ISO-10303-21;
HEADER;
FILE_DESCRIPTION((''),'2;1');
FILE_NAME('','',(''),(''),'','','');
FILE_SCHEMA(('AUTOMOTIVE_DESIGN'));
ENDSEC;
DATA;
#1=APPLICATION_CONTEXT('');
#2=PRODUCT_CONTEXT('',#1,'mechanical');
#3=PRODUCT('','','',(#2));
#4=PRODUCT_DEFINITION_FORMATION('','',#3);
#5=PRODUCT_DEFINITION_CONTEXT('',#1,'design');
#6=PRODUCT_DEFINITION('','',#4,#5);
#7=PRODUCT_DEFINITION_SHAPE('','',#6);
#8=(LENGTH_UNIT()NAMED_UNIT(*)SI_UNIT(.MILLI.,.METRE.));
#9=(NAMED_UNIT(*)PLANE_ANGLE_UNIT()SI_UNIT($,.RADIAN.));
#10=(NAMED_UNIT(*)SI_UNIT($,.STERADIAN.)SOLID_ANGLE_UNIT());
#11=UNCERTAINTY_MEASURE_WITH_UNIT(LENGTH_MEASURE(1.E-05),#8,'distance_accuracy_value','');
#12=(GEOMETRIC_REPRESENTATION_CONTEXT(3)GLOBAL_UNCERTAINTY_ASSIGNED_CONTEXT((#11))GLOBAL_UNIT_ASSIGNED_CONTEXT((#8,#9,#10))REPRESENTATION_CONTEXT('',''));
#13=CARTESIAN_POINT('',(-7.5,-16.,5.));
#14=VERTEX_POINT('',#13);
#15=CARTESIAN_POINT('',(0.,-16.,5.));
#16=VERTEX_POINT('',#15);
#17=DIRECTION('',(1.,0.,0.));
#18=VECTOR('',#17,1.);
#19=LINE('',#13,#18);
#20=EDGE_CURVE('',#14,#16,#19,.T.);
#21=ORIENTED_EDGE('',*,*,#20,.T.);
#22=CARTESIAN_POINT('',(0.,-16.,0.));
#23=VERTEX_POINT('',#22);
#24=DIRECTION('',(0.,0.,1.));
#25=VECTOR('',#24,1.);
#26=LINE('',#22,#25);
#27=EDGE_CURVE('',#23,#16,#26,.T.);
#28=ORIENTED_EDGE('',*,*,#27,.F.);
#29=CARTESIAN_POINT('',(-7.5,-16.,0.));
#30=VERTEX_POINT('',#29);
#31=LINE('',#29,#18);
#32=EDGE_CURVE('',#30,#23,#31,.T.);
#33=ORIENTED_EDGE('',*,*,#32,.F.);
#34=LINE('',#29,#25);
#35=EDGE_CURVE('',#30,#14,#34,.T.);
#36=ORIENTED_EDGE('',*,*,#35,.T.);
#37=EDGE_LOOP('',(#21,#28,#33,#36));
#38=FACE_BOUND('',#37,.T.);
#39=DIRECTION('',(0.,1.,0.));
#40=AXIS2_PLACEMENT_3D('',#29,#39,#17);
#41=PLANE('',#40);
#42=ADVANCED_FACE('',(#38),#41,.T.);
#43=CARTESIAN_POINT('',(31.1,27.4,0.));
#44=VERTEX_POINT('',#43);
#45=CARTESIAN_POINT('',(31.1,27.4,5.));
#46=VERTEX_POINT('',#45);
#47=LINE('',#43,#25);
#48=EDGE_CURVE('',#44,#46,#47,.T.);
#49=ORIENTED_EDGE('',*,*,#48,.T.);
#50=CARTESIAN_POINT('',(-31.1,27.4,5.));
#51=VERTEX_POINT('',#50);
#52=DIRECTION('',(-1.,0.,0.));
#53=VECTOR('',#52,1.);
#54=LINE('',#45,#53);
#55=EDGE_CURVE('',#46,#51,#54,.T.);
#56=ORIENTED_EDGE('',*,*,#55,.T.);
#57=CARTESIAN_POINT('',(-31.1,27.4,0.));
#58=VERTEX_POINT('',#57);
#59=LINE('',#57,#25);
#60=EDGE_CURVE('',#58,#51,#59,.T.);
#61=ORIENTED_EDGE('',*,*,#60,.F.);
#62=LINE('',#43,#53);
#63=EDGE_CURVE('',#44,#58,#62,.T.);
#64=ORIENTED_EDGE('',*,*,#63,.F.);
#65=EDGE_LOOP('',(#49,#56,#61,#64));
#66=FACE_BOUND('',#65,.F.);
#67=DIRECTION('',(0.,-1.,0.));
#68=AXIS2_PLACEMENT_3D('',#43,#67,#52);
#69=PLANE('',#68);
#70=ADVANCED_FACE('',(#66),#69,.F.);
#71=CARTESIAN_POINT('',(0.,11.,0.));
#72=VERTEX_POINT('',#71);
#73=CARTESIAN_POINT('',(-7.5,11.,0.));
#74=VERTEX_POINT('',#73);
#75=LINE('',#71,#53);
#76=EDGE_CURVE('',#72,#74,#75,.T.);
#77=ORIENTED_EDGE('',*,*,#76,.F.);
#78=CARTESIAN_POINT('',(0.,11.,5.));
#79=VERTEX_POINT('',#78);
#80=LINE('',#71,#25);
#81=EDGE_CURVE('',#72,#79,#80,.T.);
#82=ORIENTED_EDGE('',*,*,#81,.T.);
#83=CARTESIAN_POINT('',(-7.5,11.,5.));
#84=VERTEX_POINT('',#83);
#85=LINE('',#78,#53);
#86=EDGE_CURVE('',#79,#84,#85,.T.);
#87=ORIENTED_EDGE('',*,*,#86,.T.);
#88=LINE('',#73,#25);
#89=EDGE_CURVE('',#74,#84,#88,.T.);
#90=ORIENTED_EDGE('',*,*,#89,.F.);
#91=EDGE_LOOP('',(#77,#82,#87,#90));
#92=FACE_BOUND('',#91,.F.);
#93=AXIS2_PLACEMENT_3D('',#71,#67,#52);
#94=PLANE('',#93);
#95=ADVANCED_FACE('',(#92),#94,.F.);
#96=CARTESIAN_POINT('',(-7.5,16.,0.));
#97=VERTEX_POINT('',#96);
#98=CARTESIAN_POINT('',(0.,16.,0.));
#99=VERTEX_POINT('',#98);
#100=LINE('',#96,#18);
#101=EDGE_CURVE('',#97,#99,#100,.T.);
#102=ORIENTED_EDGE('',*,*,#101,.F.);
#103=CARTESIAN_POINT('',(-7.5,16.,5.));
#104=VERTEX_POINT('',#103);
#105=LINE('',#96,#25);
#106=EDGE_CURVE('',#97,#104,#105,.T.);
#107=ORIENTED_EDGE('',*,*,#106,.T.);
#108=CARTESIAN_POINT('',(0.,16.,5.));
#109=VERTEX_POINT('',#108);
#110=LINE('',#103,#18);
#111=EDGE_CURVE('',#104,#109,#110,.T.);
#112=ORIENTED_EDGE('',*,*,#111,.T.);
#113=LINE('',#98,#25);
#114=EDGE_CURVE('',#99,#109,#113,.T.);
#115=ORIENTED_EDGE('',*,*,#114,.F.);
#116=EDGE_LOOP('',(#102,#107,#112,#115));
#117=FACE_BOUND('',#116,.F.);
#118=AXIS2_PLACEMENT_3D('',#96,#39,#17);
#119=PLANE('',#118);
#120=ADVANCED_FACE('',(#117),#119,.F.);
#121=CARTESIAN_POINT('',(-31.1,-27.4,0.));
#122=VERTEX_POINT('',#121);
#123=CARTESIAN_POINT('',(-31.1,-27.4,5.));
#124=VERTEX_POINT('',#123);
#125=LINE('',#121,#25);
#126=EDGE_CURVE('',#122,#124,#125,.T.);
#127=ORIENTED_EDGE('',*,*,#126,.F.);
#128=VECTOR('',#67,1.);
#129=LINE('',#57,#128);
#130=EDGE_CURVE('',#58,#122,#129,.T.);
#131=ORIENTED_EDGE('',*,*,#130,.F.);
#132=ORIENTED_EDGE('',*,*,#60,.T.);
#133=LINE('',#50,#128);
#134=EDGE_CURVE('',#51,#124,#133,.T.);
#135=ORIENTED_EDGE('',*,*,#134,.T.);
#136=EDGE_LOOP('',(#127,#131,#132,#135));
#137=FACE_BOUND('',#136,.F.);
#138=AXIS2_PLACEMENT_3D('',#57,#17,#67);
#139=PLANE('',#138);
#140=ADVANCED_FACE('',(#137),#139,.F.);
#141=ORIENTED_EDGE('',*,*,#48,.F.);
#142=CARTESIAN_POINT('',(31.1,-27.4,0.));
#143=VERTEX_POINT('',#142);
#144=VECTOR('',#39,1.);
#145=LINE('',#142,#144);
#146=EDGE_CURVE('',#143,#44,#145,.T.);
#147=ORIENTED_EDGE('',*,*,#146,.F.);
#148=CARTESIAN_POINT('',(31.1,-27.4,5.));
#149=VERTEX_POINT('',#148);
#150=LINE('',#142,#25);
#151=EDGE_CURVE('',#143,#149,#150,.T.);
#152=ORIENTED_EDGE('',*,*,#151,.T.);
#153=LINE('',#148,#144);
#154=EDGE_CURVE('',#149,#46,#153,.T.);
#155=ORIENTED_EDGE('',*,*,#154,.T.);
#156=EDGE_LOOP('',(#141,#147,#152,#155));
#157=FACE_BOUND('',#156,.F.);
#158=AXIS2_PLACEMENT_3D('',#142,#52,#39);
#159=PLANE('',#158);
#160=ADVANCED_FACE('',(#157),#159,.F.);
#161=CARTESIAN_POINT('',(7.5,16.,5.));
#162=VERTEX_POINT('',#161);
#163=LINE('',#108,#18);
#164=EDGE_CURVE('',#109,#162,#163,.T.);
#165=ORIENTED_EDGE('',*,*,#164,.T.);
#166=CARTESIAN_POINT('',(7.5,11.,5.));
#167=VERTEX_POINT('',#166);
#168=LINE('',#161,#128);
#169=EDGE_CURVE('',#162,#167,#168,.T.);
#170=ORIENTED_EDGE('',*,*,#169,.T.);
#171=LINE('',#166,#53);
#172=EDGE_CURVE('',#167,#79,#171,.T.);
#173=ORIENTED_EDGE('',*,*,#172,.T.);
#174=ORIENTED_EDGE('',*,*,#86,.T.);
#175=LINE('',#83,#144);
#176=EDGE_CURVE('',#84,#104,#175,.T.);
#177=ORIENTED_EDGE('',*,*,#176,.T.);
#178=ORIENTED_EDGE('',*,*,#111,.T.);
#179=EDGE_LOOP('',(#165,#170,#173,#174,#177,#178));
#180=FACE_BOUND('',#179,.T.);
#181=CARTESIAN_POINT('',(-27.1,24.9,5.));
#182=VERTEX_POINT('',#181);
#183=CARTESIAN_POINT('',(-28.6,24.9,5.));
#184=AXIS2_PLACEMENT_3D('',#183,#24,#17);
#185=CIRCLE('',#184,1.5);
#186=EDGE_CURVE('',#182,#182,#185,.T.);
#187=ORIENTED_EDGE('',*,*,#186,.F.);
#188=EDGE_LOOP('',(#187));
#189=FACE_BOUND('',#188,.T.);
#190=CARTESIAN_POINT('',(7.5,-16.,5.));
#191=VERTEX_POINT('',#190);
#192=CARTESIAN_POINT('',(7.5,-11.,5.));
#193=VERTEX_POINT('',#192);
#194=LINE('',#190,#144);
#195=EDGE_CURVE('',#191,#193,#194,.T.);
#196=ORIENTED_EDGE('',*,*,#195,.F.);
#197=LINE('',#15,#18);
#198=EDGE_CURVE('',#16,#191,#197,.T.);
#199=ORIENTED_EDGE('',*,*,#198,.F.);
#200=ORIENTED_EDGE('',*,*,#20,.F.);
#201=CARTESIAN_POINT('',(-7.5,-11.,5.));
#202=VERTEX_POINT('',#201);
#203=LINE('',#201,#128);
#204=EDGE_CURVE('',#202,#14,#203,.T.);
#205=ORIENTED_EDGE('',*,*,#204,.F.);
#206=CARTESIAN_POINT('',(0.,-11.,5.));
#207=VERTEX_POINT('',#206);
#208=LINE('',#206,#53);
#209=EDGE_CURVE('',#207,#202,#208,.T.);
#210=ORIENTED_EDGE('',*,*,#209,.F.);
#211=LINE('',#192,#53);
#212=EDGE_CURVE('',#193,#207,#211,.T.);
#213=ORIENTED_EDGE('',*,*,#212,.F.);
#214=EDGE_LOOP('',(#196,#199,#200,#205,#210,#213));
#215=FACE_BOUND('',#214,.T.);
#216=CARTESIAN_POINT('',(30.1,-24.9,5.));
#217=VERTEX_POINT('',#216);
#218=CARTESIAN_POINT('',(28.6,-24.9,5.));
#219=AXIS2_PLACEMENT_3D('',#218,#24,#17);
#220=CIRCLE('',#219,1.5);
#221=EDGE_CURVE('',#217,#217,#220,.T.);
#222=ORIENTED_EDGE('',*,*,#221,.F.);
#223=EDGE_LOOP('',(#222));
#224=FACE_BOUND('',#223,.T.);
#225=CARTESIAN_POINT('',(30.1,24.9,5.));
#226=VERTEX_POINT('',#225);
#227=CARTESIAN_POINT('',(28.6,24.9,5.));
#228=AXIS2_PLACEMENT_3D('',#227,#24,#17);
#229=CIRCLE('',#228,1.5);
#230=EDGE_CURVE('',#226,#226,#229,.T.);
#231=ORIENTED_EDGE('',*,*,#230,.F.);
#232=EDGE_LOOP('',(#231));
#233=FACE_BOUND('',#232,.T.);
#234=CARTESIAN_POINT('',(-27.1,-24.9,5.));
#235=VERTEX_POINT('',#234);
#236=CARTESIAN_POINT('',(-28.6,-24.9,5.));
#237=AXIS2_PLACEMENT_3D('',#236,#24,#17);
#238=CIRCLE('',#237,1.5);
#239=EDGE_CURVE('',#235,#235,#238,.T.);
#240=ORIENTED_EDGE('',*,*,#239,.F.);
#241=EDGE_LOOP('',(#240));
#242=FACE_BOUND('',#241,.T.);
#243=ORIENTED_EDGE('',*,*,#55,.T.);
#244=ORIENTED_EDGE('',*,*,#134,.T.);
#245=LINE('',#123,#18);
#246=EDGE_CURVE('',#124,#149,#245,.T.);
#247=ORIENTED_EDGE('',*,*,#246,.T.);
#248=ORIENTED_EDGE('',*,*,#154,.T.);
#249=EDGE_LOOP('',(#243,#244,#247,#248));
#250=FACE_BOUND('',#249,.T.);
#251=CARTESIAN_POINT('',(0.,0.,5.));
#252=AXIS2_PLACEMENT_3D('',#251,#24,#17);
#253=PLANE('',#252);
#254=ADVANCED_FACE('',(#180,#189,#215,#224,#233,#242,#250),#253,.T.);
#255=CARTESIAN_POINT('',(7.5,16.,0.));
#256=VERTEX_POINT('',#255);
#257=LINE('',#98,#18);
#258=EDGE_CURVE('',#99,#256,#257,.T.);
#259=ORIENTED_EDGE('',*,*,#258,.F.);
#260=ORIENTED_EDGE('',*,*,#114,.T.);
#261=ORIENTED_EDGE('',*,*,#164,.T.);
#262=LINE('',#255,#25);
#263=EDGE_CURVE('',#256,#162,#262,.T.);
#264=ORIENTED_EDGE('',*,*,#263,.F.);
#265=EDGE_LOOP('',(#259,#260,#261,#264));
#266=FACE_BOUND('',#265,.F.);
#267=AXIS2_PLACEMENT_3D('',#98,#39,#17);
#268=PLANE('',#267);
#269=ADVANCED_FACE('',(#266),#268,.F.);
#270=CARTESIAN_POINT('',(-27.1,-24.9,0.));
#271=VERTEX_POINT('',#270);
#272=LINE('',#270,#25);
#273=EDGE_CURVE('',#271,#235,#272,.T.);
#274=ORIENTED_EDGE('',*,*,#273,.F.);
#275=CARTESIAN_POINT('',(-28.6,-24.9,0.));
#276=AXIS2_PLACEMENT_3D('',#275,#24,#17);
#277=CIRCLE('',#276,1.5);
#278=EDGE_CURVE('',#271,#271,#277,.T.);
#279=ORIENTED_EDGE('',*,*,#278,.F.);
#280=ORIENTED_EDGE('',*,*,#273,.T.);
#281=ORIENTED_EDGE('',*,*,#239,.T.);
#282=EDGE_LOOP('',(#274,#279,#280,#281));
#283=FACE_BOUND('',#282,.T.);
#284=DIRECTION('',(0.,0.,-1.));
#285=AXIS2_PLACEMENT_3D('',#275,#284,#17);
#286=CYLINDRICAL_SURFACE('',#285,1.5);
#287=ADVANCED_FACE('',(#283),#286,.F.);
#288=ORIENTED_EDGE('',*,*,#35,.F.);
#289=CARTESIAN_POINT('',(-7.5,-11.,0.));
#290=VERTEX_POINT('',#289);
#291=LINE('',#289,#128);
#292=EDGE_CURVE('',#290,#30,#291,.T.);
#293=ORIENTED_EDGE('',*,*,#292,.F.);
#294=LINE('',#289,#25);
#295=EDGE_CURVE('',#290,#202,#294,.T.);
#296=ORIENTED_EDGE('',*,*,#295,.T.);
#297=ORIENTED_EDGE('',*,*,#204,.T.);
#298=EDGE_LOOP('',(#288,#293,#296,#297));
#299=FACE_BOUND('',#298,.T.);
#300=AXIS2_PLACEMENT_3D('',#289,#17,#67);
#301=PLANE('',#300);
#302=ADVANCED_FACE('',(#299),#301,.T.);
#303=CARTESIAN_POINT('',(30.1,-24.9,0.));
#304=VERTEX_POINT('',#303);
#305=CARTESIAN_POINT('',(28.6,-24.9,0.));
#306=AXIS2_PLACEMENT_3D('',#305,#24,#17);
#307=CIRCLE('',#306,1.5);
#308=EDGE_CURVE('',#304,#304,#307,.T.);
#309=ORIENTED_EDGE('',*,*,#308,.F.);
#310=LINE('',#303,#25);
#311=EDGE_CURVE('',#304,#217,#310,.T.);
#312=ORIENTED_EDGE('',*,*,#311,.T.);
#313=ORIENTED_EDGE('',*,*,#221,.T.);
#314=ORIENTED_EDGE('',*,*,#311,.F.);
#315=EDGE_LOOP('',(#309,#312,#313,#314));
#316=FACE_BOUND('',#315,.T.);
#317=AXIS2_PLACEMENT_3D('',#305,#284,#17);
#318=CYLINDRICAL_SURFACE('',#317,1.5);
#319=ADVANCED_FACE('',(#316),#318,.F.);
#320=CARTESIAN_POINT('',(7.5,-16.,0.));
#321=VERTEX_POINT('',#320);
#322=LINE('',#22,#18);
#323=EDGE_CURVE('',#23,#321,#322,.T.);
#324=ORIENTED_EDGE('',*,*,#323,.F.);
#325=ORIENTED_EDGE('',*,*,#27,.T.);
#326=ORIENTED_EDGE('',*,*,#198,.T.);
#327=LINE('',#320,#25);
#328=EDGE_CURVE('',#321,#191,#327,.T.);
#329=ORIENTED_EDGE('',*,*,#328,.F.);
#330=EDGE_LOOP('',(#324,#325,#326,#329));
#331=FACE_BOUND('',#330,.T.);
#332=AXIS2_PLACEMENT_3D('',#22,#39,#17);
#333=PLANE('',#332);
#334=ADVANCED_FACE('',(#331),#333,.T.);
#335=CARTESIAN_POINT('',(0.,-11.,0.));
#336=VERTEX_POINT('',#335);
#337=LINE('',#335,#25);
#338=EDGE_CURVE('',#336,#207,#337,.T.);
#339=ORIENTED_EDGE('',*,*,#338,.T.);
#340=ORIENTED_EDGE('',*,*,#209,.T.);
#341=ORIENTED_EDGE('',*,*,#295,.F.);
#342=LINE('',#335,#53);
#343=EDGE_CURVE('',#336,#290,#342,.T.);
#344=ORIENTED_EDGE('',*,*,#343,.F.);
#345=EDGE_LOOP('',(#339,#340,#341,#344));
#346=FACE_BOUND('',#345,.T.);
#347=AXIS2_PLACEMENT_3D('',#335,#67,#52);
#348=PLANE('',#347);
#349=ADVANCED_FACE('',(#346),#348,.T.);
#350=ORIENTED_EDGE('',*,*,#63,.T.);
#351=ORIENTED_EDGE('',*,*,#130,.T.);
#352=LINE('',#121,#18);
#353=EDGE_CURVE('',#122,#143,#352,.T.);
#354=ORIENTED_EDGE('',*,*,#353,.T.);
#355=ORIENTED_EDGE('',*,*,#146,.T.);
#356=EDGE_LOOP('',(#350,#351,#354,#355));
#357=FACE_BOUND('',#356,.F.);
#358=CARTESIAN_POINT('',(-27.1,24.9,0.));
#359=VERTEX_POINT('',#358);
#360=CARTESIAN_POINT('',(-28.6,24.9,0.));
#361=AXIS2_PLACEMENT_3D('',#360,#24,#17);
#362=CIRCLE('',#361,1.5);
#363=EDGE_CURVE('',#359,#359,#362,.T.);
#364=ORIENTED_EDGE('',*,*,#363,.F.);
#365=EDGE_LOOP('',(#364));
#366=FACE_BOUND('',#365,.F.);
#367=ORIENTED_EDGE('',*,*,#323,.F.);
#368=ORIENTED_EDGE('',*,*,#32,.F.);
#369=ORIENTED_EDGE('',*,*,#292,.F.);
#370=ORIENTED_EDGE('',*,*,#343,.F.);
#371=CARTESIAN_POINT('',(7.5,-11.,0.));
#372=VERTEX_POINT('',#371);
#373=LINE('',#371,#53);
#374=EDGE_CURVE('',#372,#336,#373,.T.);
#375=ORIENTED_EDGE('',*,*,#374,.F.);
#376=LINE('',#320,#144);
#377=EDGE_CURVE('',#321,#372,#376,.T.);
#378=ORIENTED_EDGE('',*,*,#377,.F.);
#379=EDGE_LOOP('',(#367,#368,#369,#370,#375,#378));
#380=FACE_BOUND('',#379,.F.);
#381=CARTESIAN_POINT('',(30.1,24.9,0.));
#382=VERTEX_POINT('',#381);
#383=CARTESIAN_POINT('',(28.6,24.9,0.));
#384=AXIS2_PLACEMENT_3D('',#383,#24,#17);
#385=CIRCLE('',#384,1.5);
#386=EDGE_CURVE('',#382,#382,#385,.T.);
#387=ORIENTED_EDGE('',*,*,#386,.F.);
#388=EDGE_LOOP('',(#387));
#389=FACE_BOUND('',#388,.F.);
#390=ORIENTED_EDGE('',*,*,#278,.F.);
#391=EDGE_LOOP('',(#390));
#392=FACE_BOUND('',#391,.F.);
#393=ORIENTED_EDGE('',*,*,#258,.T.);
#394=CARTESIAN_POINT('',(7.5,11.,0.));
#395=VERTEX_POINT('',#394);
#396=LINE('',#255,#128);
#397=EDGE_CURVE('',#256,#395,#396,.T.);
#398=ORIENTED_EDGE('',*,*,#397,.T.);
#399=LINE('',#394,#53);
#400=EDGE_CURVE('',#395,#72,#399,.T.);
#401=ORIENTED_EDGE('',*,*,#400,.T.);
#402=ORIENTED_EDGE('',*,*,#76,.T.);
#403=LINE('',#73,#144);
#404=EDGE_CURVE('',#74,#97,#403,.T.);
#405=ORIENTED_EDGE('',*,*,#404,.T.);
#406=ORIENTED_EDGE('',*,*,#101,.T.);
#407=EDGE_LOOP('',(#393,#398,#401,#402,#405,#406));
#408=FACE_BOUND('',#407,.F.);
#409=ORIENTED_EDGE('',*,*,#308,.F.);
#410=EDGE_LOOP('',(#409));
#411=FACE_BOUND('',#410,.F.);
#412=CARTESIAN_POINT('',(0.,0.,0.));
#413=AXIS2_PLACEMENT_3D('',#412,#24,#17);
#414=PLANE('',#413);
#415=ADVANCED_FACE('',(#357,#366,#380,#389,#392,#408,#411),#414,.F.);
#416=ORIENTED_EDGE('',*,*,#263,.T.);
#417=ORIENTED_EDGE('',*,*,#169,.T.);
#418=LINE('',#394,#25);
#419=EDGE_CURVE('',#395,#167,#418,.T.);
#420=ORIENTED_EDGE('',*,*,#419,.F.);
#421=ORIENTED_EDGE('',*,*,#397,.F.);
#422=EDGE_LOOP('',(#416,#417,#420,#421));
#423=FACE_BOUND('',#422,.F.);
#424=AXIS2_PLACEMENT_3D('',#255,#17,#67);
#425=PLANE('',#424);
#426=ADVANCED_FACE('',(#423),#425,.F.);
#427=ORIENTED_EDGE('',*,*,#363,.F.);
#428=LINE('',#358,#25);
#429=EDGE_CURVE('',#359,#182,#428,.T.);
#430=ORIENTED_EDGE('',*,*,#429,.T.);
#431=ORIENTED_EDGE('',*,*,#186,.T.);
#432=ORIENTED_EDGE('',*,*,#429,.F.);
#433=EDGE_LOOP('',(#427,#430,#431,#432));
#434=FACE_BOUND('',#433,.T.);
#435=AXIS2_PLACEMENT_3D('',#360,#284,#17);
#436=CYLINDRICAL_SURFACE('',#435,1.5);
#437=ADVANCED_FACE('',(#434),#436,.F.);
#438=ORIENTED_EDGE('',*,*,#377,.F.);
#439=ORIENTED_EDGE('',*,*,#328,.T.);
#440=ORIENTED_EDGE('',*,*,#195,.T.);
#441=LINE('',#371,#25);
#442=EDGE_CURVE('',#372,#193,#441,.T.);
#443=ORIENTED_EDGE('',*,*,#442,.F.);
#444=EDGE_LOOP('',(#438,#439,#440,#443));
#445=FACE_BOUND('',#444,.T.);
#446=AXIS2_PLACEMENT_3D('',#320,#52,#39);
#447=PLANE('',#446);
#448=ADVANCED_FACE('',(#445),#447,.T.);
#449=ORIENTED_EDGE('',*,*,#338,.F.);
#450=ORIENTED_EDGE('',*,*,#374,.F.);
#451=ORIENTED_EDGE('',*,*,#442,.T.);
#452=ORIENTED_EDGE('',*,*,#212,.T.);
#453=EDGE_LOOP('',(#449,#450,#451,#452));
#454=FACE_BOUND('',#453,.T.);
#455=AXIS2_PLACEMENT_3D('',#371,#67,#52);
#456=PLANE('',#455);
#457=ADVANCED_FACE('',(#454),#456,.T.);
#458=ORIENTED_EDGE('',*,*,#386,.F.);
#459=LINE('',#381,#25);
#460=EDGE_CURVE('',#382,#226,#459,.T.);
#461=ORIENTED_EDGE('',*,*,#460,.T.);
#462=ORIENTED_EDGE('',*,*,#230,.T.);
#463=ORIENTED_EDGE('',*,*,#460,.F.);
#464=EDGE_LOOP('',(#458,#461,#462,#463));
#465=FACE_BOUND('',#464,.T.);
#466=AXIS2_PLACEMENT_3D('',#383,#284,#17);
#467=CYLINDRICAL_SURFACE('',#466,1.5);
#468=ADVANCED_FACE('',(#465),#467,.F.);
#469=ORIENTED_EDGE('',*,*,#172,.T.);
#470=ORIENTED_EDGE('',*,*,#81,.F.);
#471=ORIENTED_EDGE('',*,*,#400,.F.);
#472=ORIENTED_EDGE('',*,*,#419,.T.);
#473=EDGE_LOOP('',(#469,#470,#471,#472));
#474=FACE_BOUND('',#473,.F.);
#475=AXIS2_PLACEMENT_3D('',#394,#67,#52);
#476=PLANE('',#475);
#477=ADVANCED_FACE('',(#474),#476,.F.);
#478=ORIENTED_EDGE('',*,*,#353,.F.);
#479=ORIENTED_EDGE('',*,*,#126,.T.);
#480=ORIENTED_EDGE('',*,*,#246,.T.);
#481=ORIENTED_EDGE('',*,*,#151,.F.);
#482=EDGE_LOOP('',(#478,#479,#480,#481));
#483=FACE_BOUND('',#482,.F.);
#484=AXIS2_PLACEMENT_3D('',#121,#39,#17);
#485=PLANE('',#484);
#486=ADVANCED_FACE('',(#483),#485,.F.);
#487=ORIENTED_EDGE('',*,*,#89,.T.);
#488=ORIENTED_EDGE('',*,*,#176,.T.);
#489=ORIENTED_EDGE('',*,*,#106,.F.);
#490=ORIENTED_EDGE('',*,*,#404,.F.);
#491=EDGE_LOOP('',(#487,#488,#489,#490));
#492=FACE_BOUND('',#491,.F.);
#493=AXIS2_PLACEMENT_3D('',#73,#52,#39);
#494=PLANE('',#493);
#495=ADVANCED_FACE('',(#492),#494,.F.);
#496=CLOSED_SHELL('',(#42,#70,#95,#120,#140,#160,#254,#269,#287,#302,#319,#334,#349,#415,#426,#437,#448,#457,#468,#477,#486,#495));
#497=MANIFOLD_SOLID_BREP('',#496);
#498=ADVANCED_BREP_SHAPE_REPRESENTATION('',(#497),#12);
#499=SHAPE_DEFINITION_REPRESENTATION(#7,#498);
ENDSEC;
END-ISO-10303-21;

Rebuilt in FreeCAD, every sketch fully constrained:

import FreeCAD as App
import Part
import Sketcher
from FreeCAD import Vector


def add_polygon(sketch, points):
    """Adds a closed chain of lines whose ends are joined by coincident constraints."""
    first, n = sketch.GeometryCount, len(points)
    for a, b in zip(points, points[1:] + points[:1]):
        sketch.addGeometry(Part.LineSegment(App.Vector(*a, 0), App.Vector(*b, 0)), False)
    for i in range(n):
        sketch.addConstraint(Sketcher.Constraint("Coincident", first + i, 2, first + (i + 1) % n, 1))

doc = App.newDocument("Part")
body = doc.addObject("PartDesign::Body", "Body")

# Sketch on XY plane
sketch1 = body.newObject("Sketcher::SketchObject", "Sketch")
sketch1.AttachmentSupport = (doc.getObject("XY_Plane"), [""])
sketch1.MapMode = "FlatFace"
add_polygon(sketch1, [(31.1, -27.4), (31.1, 27.4), (-31.1, 27.4), (-31.1, -27.4)])  # lines 0-3
sketch1.addGeometry(Part.Circle(Vector(-28.6, -24.9, 0), Vector(0, 0, 1), 1.5), False)  # 4
sketch1.addGeometry(Part.Circle(Vector(28.6, -24.9, 0), Vector(0, 0, 1), 1.5), False)  # 5
add_polygon(sketch1, [(7.5, -16), (-7.5, -16), (-7.5, -11), (7.5, -11)])  # lines 6-9
sketch1.addGeometry(Part.Circle(Vector(-28.6, 24.9, 0), Vector(0, 0, 1), 1.5), False)  # 10
add_polygon(sketch1, [(-7.5, 11), (-7.5, 16), (7.5, 16), (7.5, 11)])  # lines 11-14
sketch1.addGeometry(Part.Circle(Vector(28.6, 24.9, 0), Vector(0, 0, 1), 1.5), False)  # 15
sketch1.addConstraint([
    Sketcher.Constraint("Vertical", 0),
    Sketcher.Constraint("Horizontal", 1),
    Sketcher.Constraint("Vertical", 2),
    Sketcher.Constraint("Horizontal", 3),
    Sketcher.Constraint("Horizontal", 6),
    Sketcher.Constraint("Vertical", 7),
    Sketcher.Constraint("Horizontal", 8),
    Sketcher.Constraint("Vertical", 9),
    Sketcher.Constraint("Vertical", 11),
    Sketcher.Constraint("Horizontal", 12),
    Sketcher.Constraint("Vertical", 13),
    Sketcher.Constraint("Horizontal", 14),
    Sketcher.Constraint("Equal", 4, 5),
    Sketcher.Constraint("Equal", 5, 10),
    Sketcher.Constraint("Equal", 10, 15),
    Sketcher.Constraint("Symmetric", 5, 3, 10, 3, -1, 1),
    Sketcher.Constraint("Symmetric", 4, 3, 15, 3, -1, 1),
    Sketcher.Constraint("Symmetric", 0, 2, 2, 2, -1, 1),
    Sketcher.Constraint("Symmetric", 9, 2, 11, 2, -1, 1),
    Sketcher.Constraint("Symmetric", 7, 2, 13, 2, -1, 1),
    Sketcher.Constraint("Symmetric", 4, 3, 5, 3, -2),
    Sketcher.Constraint("Vertical", 7, 2, 11, 2),
    Sketcher.Constraint("DistanceY", 7, 1, 7, 2, 5.0),
    Sketcher.Constraint("Diameter", 4, 3.0),
    Sketcher.Constraint("DistanceY", 6, 2, -1, 1, 16.0),
    Sketcher.Constraint("DistanceX", 6, 2, -1, 1, 7.5),
    Sketcher.Constraint("DistanceX", 1, 2, 1, 1, 62.2),
    Sketcher.Constraint("DistanceY", 0, 1, 0, 2, 54.8),
    Sketcher.Constraint("DistanceX", 4, 3, -1, 1, 28.6),
    Sketcher.Constraint("DistanceY", 4, 3, -1, 1, 24.9),
])
pad1 = body.newObject("PartDesign::Pad", "Pad")
pad1.Profile = sketch1
pad1.Length = 5

doc.recompute()
